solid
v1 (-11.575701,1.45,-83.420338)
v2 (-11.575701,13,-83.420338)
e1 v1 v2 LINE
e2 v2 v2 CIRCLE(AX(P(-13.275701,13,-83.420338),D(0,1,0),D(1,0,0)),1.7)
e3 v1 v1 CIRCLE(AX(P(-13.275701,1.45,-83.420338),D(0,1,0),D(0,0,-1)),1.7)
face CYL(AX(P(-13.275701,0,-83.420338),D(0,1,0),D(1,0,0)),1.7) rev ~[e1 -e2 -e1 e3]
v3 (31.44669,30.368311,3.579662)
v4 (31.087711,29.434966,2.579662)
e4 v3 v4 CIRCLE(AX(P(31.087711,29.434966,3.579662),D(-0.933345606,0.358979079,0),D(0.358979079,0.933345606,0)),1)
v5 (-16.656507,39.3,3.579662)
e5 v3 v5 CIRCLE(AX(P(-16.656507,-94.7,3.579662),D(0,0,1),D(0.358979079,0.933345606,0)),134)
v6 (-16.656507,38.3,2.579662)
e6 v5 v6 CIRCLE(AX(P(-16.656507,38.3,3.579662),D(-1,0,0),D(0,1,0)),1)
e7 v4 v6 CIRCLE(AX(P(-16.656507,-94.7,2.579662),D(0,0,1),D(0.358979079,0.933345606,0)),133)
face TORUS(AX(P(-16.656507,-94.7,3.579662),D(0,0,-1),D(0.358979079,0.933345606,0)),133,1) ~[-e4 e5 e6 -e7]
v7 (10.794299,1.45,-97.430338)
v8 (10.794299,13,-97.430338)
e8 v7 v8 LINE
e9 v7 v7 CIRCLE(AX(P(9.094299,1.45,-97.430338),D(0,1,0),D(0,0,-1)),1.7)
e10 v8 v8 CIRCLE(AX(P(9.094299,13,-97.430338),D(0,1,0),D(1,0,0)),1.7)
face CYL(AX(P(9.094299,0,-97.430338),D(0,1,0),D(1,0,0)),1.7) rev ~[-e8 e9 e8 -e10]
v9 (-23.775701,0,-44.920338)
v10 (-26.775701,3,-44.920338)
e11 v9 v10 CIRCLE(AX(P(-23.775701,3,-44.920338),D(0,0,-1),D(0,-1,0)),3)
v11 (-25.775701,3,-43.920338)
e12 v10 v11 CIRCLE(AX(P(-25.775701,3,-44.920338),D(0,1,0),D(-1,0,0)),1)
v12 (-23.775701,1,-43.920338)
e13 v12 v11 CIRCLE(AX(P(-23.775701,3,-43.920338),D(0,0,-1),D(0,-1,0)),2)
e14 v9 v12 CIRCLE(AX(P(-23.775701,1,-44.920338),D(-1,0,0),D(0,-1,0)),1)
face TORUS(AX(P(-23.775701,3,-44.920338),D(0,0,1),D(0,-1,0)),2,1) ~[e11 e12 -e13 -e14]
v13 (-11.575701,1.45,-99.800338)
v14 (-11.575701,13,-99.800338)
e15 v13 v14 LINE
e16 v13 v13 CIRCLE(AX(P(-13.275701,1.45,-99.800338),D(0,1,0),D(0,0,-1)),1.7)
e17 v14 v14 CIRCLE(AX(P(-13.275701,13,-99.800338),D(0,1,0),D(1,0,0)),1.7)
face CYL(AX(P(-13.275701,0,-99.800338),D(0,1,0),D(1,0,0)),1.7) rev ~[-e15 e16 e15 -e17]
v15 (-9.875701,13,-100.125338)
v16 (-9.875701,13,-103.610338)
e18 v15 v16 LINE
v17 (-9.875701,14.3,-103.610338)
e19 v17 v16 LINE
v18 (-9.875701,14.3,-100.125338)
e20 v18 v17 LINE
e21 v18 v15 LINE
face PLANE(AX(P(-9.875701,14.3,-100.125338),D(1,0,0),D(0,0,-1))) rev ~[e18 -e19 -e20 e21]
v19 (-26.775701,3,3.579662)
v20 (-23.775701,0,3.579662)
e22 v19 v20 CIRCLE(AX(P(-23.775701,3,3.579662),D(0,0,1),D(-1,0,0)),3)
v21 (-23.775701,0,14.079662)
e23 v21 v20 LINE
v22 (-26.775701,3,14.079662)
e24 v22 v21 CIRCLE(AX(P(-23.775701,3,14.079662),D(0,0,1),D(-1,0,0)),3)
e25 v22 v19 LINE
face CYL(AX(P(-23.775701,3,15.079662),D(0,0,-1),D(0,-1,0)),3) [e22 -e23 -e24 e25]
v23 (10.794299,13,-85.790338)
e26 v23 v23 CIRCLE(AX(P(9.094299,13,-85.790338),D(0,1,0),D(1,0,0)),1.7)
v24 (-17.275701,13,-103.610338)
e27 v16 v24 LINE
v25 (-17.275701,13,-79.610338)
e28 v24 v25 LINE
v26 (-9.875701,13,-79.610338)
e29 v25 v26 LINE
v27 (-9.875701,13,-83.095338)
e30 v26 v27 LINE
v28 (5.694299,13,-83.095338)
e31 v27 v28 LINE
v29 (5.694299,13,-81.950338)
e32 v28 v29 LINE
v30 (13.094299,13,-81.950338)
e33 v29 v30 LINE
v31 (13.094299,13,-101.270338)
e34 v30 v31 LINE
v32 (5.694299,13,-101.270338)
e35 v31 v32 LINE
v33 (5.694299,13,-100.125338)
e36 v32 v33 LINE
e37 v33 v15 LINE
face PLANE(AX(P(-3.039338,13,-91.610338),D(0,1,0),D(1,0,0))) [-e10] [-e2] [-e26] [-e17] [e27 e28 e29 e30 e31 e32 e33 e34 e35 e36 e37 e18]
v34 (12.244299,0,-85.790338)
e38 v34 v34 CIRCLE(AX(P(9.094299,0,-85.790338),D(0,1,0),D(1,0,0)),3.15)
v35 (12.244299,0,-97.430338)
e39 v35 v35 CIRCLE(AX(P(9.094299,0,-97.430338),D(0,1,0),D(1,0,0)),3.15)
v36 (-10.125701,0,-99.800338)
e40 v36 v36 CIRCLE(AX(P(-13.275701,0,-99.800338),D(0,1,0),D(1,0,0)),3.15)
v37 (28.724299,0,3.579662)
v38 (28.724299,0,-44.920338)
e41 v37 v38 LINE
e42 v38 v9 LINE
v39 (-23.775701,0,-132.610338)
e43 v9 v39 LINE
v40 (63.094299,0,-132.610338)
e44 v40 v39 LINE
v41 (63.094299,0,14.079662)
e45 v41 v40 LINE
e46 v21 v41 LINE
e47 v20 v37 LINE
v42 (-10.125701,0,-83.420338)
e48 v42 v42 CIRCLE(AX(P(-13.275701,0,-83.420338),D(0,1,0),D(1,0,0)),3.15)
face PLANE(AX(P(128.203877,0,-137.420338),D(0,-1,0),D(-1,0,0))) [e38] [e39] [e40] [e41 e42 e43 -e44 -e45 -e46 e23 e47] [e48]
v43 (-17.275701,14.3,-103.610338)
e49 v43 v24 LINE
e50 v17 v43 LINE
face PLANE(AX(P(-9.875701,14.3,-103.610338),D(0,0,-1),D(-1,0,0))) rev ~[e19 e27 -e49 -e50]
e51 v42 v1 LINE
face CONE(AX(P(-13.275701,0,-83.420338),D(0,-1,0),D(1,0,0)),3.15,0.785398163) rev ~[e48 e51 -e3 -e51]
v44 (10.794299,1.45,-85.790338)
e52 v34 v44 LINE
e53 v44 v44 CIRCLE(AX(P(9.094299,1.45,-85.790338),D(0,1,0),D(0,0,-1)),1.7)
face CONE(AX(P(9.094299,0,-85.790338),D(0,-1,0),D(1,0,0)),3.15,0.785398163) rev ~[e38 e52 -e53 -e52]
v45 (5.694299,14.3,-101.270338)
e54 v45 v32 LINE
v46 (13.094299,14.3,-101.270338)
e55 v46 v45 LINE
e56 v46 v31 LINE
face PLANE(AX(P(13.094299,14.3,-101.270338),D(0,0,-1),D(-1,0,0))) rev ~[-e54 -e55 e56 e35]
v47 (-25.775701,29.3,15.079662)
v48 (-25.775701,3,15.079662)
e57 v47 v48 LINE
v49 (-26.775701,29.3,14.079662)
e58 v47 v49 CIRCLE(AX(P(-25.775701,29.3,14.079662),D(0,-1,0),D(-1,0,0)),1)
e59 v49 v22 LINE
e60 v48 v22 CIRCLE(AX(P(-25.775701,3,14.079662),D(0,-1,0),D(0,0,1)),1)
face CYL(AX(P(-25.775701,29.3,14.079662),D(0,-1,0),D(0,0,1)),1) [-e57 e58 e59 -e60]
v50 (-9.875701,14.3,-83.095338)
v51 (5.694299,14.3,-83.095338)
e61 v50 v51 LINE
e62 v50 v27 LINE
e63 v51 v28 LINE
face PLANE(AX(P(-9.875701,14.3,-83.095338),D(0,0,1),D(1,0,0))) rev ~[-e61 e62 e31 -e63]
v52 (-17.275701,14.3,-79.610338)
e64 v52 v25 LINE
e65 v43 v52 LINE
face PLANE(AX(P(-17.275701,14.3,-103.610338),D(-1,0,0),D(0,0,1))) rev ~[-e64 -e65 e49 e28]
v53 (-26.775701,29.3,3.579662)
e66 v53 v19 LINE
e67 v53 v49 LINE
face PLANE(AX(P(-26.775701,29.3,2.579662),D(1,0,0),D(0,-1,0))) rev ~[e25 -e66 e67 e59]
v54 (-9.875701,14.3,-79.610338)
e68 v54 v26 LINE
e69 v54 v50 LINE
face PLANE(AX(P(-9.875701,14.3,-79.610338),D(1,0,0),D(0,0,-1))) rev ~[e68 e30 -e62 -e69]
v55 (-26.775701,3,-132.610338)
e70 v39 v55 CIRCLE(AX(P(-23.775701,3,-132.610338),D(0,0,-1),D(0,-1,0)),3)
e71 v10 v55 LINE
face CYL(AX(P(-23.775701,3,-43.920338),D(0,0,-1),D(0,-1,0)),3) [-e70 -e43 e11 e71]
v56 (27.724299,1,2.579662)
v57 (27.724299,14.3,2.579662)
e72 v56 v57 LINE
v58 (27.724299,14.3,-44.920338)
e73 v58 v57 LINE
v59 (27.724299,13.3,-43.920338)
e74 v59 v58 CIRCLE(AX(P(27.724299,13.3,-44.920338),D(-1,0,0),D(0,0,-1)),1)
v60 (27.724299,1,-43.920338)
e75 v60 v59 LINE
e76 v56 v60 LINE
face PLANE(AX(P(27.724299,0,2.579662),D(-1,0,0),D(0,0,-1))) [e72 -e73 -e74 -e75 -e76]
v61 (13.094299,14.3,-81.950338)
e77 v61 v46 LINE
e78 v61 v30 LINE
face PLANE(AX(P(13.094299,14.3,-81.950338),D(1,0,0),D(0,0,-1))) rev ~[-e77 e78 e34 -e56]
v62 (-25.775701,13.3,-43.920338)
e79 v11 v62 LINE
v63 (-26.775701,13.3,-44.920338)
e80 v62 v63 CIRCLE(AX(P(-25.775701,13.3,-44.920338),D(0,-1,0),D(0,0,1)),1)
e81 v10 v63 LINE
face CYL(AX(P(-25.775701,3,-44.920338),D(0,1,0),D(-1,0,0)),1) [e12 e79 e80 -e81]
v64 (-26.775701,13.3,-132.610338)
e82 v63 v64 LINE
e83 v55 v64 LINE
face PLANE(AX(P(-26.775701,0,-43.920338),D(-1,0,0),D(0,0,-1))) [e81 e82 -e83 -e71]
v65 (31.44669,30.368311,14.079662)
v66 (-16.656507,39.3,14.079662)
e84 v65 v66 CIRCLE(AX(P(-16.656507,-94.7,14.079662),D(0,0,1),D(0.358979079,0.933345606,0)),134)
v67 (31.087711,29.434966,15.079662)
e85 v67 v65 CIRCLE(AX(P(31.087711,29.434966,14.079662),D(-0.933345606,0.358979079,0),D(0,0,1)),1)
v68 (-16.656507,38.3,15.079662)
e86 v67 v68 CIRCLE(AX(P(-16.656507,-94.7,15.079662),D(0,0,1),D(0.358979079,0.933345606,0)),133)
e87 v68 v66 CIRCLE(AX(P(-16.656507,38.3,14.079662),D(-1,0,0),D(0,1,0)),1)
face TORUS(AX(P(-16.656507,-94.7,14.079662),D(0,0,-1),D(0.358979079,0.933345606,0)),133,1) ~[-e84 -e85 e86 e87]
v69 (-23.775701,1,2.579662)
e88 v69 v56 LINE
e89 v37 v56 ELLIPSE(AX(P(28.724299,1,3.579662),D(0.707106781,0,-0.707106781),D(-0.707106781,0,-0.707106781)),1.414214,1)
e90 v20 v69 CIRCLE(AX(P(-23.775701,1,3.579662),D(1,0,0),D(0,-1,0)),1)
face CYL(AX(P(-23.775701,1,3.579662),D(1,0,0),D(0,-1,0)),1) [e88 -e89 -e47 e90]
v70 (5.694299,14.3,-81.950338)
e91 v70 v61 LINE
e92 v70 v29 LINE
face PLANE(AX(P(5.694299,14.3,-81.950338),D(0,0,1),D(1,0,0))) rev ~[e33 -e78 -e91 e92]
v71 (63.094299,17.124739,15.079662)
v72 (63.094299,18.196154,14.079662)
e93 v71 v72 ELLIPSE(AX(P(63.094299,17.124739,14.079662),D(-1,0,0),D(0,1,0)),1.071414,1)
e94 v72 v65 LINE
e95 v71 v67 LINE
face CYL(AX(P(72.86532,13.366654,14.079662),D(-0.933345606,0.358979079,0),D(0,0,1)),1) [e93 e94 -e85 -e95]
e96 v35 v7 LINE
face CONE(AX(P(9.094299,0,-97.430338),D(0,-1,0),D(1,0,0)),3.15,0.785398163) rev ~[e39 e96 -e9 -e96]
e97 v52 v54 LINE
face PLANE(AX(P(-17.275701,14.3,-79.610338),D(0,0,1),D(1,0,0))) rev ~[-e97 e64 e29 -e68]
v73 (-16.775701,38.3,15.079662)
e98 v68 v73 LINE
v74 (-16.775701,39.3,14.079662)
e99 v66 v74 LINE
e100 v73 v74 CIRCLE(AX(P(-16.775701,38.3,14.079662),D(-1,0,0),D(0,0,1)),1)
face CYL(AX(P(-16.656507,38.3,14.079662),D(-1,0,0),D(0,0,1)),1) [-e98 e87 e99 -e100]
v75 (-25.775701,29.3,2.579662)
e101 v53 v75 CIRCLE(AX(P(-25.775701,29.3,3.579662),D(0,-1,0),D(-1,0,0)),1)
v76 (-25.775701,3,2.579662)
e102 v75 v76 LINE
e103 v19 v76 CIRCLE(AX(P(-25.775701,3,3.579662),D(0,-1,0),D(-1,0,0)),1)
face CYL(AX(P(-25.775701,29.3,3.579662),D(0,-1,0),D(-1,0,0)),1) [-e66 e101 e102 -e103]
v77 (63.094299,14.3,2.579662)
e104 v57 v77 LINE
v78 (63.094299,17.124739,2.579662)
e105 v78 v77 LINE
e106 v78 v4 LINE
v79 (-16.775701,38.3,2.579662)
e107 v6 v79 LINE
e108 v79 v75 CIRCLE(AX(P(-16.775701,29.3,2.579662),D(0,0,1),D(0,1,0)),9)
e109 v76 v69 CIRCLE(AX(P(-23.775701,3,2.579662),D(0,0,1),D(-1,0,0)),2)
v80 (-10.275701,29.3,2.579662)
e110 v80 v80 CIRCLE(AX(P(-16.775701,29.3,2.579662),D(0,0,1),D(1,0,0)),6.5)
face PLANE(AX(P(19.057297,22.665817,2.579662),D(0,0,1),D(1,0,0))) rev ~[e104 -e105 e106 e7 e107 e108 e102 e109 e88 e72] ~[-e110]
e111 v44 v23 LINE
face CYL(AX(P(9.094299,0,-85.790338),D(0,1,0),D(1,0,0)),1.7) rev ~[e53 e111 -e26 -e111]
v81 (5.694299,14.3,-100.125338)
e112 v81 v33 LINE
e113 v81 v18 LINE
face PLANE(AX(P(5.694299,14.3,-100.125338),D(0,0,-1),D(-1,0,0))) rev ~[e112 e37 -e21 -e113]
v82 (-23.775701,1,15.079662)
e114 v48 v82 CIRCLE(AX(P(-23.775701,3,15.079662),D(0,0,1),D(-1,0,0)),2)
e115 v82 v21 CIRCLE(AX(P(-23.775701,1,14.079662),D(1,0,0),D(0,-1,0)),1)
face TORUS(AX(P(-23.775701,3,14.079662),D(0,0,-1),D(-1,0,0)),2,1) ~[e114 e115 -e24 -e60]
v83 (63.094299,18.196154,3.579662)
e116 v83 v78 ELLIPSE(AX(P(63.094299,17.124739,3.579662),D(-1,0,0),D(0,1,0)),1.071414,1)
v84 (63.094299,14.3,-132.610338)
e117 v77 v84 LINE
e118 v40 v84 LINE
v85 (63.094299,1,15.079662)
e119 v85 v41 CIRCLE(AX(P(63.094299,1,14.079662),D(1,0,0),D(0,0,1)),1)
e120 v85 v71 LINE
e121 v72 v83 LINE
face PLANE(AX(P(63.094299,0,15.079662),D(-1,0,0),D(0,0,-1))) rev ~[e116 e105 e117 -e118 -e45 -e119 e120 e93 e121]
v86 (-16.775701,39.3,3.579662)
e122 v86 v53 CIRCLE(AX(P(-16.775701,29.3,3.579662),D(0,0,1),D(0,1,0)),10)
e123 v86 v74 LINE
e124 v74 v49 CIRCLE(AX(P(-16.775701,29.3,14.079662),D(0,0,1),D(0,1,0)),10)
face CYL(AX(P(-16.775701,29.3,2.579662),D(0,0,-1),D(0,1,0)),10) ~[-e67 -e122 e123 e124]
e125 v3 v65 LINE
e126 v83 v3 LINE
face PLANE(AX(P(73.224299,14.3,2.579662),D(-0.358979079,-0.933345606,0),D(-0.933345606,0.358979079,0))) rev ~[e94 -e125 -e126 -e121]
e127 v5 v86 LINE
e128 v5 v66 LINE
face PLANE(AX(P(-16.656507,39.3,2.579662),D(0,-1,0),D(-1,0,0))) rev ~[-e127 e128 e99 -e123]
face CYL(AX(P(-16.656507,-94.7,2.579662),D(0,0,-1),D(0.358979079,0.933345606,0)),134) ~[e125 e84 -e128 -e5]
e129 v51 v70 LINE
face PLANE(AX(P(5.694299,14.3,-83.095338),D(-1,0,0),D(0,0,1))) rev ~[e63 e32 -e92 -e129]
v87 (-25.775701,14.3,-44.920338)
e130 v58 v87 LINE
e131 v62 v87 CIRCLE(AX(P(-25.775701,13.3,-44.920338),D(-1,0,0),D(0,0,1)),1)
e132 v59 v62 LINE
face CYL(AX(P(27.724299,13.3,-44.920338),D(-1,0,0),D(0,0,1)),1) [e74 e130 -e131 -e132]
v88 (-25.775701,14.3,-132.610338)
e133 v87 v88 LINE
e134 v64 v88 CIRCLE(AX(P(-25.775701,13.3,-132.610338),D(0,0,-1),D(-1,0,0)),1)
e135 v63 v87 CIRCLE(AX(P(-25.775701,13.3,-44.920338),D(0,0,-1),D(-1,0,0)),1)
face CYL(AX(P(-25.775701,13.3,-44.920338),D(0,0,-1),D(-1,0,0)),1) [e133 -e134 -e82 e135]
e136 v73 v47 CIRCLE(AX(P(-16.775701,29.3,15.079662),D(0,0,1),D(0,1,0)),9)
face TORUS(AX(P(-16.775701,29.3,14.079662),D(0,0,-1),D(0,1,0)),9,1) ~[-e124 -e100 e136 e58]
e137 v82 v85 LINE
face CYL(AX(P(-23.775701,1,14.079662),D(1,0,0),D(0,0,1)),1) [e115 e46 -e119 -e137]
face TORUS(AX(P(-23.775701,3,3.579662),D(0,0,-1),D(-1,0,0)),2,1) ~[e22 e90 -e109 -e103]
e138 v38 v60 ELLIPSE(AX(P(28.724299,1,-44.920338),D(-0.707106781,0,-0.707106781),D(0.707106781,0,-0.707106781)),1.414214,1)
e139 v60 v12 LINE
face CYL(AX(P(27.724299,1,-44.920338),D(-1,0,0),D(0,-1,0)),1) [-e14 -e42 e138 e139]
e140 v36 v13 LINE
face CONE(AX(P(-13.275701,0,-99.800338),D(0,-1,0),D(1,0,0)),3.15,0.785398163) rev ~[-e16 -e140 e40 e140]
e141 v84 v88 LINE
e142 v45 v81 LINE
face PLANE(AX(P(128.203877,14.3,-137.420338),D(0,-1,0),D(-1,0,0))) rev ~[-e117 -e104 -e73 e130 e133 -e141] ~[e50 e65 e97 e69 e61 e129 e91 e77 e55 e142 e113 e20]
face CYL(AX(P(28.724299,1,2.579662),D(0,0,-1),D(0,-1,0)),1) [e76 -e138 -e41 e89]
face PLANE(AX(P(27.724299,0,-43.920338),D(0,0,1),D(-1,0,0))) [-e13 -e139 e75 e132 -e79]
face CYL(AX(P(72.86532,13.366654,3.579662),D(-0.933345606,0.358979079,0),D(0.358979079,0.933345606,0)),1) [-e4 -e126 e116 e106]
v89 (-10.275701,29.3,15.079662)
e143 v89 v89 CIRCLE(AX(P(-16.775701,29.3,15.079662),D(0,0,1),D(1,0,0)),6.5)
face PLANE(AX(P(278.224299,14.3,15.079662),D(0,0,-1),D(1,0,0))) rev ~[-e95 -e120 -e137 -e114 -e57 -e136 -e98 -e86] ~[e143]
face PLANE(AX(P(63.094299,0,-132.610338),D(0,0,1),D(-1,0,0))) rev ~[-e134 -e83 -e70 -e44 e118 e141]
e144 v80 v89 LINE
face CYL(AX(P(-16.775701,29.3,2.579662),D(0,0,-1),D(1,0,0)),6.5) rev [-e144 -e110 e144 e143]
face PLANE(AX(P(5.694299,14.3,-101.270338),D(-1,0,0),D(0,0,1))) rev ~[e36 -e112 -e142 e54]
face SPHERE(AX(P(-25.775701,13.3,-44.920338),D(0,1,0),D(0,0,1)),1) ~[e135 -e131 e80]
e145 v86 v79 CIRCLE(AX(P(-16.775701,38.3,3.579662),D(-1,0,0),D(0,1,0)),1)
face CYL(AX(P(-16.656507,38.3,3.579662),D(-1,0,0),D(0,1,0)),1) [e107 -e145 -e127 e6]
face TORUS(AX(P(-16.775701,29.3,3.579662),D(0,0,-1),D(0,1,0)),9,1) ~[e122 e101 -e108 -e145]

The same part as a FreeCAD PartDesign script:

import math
import FreeCAD as App
import Part
import Sketcher
from FreeCAD import Vector
Q = App.Units.Quantity


def edges_at(feature, points):
    """Names of the edges that pass closest to the given points."""
    edges = feature.Shape.Edges
    near = lambda p: min(range(len(edges)), key=lambda i: edges[i].distToShape(Part.Vertex(*p))[0])
    return sorted({f"Edge{near(p) + 1}" for p in points})


def add_polygon(sketch, points):
    """Adds a closed chain of lines whose ends are joined by coincident constraints."""
    first, n = sketch.GeometryCount, len(points)
    for a, b in zip(points, points[1:] + points[:1]):
        sketch.addGeometry(Part.LineSegment(App.Vector(*a, 0), App.Vector(*b, 0)), False)
    for i in range(n):
        sketch.addConstraint(Sketcher.Constraint("Coincident", first + i, 2, first + (i + 1) % n, 1))

doc = App.newDocument("Part")
body = doc.addObject("PartDesign::Body", "Body")

sketch1 = doc.addObject("Sketcher::SketchObject", "Sketch")
body.addObject(sketch1)
sketch1.AttachmentSupport = (doc.XZ_Plane, [""])
sketch1.MapMode = "FlatFace"
add_polygon(sketch1, [(28, -44), (28, 3), (-27, 3), (-27, 15), (318, 15), (318, -290), (-27, -290), (-27, -277), (28, -277), (28, -231), (-27, -231), (-27, -44)])
sketch1.addConstraint(Sketcher.Constraint("Vertical", 0))
sketch1.addConstraint(Sketcher.Constraint("Horizontal", 1))
sketch1.addConstraint(Sketcher.Constraint("Vertical", 2))
sketch1.addConstraint(Sketcher.Constraint("Horizontal", 3))
sketch1.addConstraint(Sketcher.Constraint("Vertical", 4))
sketch1.addConstraint(Sketcher.Constraint("Horizontal", 5))
sketch1.addConstraint(Sketcher.Constraint("Vertical", 6))
sketch1.addConstraint(Sketcher.Constraint("Horizontal", 7))
sketch1.addConstraint(Sketcher.Constraint("Vertical", 8))
sketch1.addConstraint(Sketcher.Constraint("Horizontal", 9))
sketch1.addConstraint(Sketcher.Constraint("Vertical", 10))
sketch1.addConstraint(Sketcher.Constraint("Horizontal", 11))
sketch1.addConstraint(Sketcher.Constraint("Vertical", 2, 2, 5, 2))
sketch1.addConstraint(Sketcher.Constraint("Vertical", 0, 2, 7, 2))
sketch1.addConstraint(Sketcher.Constraint("Vertical", 6, 2, 9, 2))
sketch1.addConstraint(Sketcher.Constraint("Equal", 2, 6))
sketch1.addConstraint(Sketcher.Constraint("Equal", 0, 8))
sketch1.addConstraint(Sketcher.Constraint("DistanceX", 3, 1, 3, 2, 345.0))
sketch1.addConstraint(Sketcher.Constraint("DistanceY", 4, 2, 4, 1, 305.0))
sketch1.addConstraint(Sketcher.Constraint("DistanceY", 10, 1, 10, 2, 187.0))
sketch1.addConstraint(Sketcher.Constraint("DistanceX", 1, 2, 1, 1, 54.5))
sketch1.addConstraint(Sketcher.Constraint("DistanceY", 0, 1, 0, 2, 46.5))
sketch1.addConstraint(Sketcher.Constraint("DistanceX", -1, 1, 0, 2, 27.724299))
sketch1.addConstraint(Sketcher.Constraint("DistanceY", -1, 1, 0, 2, 2.579662))
pad1 = doc.addObject("PartDesign::Pad", "Pad")
body.addObject(pad1)
pad1.Profile = sketch1
pad1.Length = 14.3
pad1.Reversed = True

sketch2 = doc.addObject("Sketcher::SketchObject", "Sketch001")
body.addObject(sketch2)
sketch2.AttachmentSupport = (doc.XZ_Plane, [""])
sketch2.MapMode = "FlatFace"
sketch2.AttachmentOffset = App.Placement(Vector(0, 0, -14.3), App.Rotation())
add_polygon(sketch2, [(5.7, -191.7), (-9.9, -191.7), (-9.9, -195.2), (-17.3, -195.2), (-17.3, -171.2), (-9.9, -171.2), (-9.9, -174.7), (5.7, -174.7), (5.7, -173.6), (13.1, -173.6), (13.1, -192.9), (5.7, -192.9)])
sketch2.addGeometry(Part.Circle(Vector(-13.3, -175, 0), Vector(0, 0, 1), 1.5), False)
sketch2.addGeometry(Part.Circle(Vector(9.1, -177.4, 0), Vector(0, 0, 1), 1.5), False)
sketch2.addGeometry(Part.Circle(Vector(-13.3, -191.4, 0), Vector(0, 0, 1), 1.5), False)
sketch2.addGeometry(Part.Circle(Vector(9.1, -189.1, 0), Vector(0, 0, 1), 1.5), False)
add_polygon(sketch2, [(5.7, -100.1), (-9.9, -100.1), (-9.9, -103.6), (-17.3, -103.6), (-17.3, -79.6), (-9.9, -79.6), (-9.9, -83.1), (5.7, -83.1), (5.7, -82), (13.1, -82), (13.1, -101.3), (5.7, -101.3)])
sketch2.addGeometry(Part.Circle(Vector(-13.3, -83.4, 0), Vector(0, 0, 1), 1.5), False)
sketch2.addGeometry(Part.Circle(Vector(9.1, -85.8, 0), Vector(0, 0, 1), 1.5), False)
sketch2.addGeometry(Part.Circle(Vector(-13.3, -99.8, 0), Vector(0, 0, 1), 1.5), False)
sketch2.addGeometry(Part.Circle(Vector(9.1, -97.4, 0), Vector(0, 0, 1), 1.5), False)
sketch2.addConstraint(Sketcher.Constraint("Horizontal", 0))
sketch2.addConstraint(Sketcher.Constraint("Vertical", 1))
sketch2.addConstraint(Sketcher.Constraint("Horizontal", 2))
sketch2.addConstraint(Sketcher.Constraint("Vertical", 3))
sketch2.addConstraint(Sketcher.Constraint("Horizontal", 4))
sketch2.addConstraint(Sketcher.Constraint("Vertical", 5))
sketch2.addConstraint(Sketcher.Constraint("Horizontal", 6))
sketch2.addConstraint(Sketcher.Constraint("Vertical", 7))
sketch2.addConstraint(Sketcher.Constraint("Horizontal", 8))
sketch2.addConstraint(Sketcher.Constraint("Vertical", 9))
sketch2.addConstraint(Sketcher.Constraint("Horizontal", 10))
sketch2.addConstraint(Sketcher.Constraint("Vertical", 11))
sketch2.addConstraint(Sketcher.Constraint("Horizontal", 16))
sketch2.addConstraint(Sketcher.Constraint("Vertical", 17))
sketch2.addConstraint(Sketcher.Constraint("Horizontal", 18))
sketch2.addConstraint(Sketcher.Constraint("Vertical", 19))
sketch2.addConstraint(Sketcher.Constraint("Horizontal", 20))
sketch2.addConstraint(Sketcher.Constraint("Vertical", 21))
sketch2.addConstraint(Sketcher.Constraint("Horizontal", 22))
sketch2.addConstraint(Sketcher.Constraint("Vertical", 23))
sketch2.addConstraint(Sketcher.Constraint("Horizontal", 24))
sketch2.addConstraint(Sketcher.Constraint("Vertical", 25))
sketch2.addConstraint(Sketcher.Constraint("Horizontal", 26))
sketch2.addConstraint(Sketcher.Constraint("Vertical", 27))
sketch2.addConstraint(Sketcher.Constraint("Equal", 12, 13))
sketch2.addConstraint(Sketcher.Constraint("Equal", 13, 14))
sketch2.addConstraint(Sketcher.Constraint("Equal", 14, 15))
sketch2.addConstraint(Sketcher.Constraint("Equal", 15, 28))
sketch2.addConstraint(Sketcher.Constraint("Equal", 28, 29))
sketch2.addConstraint(Sketcher.Constraint("Equal", 29, 30))
sketch2.addConstraint(Sketcher.Constraint("Equal", 30, 31))
sketch2.addConstraint(Sketcher.Constraint("Vertical", 12, 3, 14, 3))
sketch2.addConstraint(Sketcher.Constraint("Vertical", 13, 3, 15, 3))
sketch2.addConstraint(Sketcher.Constraint("Vertical", 14, 3, 28, 3))
sketch2.addConstraint(Sketcher.Constraint("Vertical", 15, 3, 29, 3))
sketch2.addConstraint(Sketcher.Constraint("Vertical", 28, 3, 30, 3))
sketch2.addConstraint(Sketcher.Constraint("Vertical", 29, 3, 31, 3))
sketch2.addConstraint(Sketcher.Constraint("Vertical", 1, 2, 4, 2))
sketch2.addConstraint(Sketcher.Constraint("Vertical", 7, 2, 10, 2))
sketch2.addConstraint(Sketcher.Constraint("Vertical", 5, 2, 16, 2))
sketch2.addConstraint(Sketcher.Constraint("Vertical", 3, 2, 18, 2))
sketch2.addConstraint(Sketcher.Constraint("Vertical", 17, 2, 20, 2))
sketch2.addConstraint(Sketcher.Constraint("Vertical", 11, 2, 22, 2))
sketch2.addConstraint(Sketcher.Constraint("Vertical", 9, 2, 24, 2))
sketch2.addConstraint(Sketcher.Constraint("Vertical", 23, 2, 26, 2))
sketch2.addConstraint(Sketcher.Constraint("Equal", 4, 8))
sketch2.addConstraint(Sketcher.Constraint("Equal", 1, 5))
sketch2.addConstraint(Sketcher.Constraint("Equal", 7, 11))
sketch2.addConstraint(Sketcher.Constraint("Equal", 5, 17))
sketch2.addConstraint(Sketcher.Constraint("Equal", 3, 19))
sketch2.addConstraint(Sketcher.Constraint("Equal", 17, 21))
sketch2.addConstraint(Sketcher.Constraint("Equal", 11, 23))
sketch2.addConstraint(Sketcher.Constraint("Equal", 9, 25))
sketch2.addConstraint(Sketcher.Constraint("Diameter", 12, 3.0))
sketch2.addConstraint(Sketcher.Constraint("DistanceY", 3, 1, 3, 2, 24.0))
sketch2.addConstraint(Sketcher.Constraint("DistanceX", 2, 2, 2, 1, 7.4))
sketch2.addConstraint(Sketcher.Constraint("DistanceY", 14, 3, 28, 3, 108.0))
sketch2.addConstraint(Sketcher.Constraint("DistanceX", 2, 2, 14, 3, 4.0))
sketch2.addConstraint(Sketcher.Constraint("DistanceX", 13, 3, 8, 2, 4.0))
sketch2.addConstraint(Sketcher.Constraint("DistanceX", 0, 2, 0, 1, 15.57))
sketch2.addConstraint(Sketcher.Constraint("DistanceY", 9, 2, 9, 1, 19.32))
sketch2.addConstraint(Sketcher.Constraint("DistanceY", 1, 2, 1, 1, 3.485))
sketch2.addConstraint(Sketcher.Constraint("DistanceY", 13, 3, 12, 3, 2.37))
sketch2.addConstraint(Sketcher.Constraint("DistanceY", 14, 3, 12, 3, 16.38))
sketch2.addConstraint(Sketcher.Constraint("DistanceY", 15, 3, 13, 3, 11.64))
sketch2.addConstraint(Sketcher.Constraint("DistanceY", 29, 3, 28, 3, 2.37))
sketch2.addConstraint(Sketcher.Constraint("DistanceY", 30, 3, 28, 3, 16.38))
sketch2.addConstraint(Sketcher.Constraint("DistanceY", 31, 3, 29, 3, 11.64))
sketch2.addConstraint(Sketcher.Constraint("DistanceY", 1, 2, 14, 3, 3.81))
sketch2.addConstraint(Sketcher.Constraint("DistanceY", 17, 2, 30, 3, 3.81))
sketch2.addConstraint(Sketcher.Constraint("DistanceX", 12, 3, -1, 1, 13.275701))
sketch2.addConstraint(Sketcher.Constraint("DistanceY", 12, 3, -1, 1, 175.040338))
pocket1 = doc.addObject("PartDesign::Pocket", "Pocket")
body.addObject(pocket1)
pocket1.Profile = sketch2
pocket1.Length = 1.3
pocket1.Reversed = True

sketch3 = doc.addObject("Sketcher::SketchObject", "Sketch002")
body.addObject(sketch3)
sketch3.AttachmentSupport = (doc.XZ_Plane, [""])
sketch3.MapMode = "FlatFace"
sketch3.addGeometry(Part.Circle(Vector(-13.3, -191.4, 0), Vector(0, 0, 1), 1.7), False)
sketch3.addGeometry(Part.Circle(Vector(-13.3, -175, 0), Vector(0, 0, 1), 1.7), False)
sketch3.addGeometry(Part.Circle(Vector(9.1, -177.4, 0), Vector(0, 0, 1), 1.7), False)
sketch3.addGeometry(Part.Circle(Vector(9.1, -189.1, 0), Vector(0, 0, 1), 1.7), False)
sketch3.addGeometry(Part.Circle(Vector(-13.3, -83.4, 0), Vector(0, 0, 1), 1.7), False)
sketch3.addGeometry(Part.Circle(Vector(-13.3, -99.8, 0), Vector(0, 0, 1), 1.7), False)
sketch3.addGeometry(Part.Circle(Vector(9.1, -97.4, 0), Vector(0, 0, 1), 1.7), False)
sketch3.addGeometry(Part.Circle(Vector(9.1, -85.8, 0), Vector(0, 0, 1), 1.7), False)
sketch3.addConstraint(Sketcher.Constraint("Equal", 0, 1))
sketch3.addConstraint(Sketcher.Constraint("Equal", 1, 2))
sketch3.addConstraint(Sketcher.Constraint("Equal", 2, 3))
sketch3.addConstraint(Sketcher.Constraint("Equal", 3, 4))
sketch3.addConstraint(Sketcher.Constraint("Equal", 4, 5))
sketch3.addConstraint(Sketcher.Constraint("Equal", 5, 6))
sketch3.addConstraint(Sketcher.Constraint("Equal", 6, 7))
sketch3.addConstraint(Sketcher.Constraint("Vertical", 0, 3, 1, 3))
sketch3.addConstraint(Sketcher.Constraint("Vertical", 2, 3, 3, 3))
sketch3.addConstraint(Sketcher.Constraint("Vertical", 1, 3, 4, 3))
sketch3.addConstraint(Sketcher.Constraint("Vertical", 4, 3, 5, 3))
sketch3.addConstraint(Sketcher.Constraint("Vertical", 3, 3, 6, 3))
sketch3.addConstraint(Sketcher.Constraint("Vertical", 6, 3, 7, 3))
sketch3.addConstraint(Sketcher.Constraint("Diameter", 0, 3.4))
sketch3.addConstraint(Sketcher.Constraint("DistanceY", 0, 3, 4, 3, 108.0))
sketch3.addConstraint(Sketcher.Constraint("DistanceY", 0, 3, 1, 3, 16.38))
sketch3.addConstraint(Sketcher.Constraint("DistanceX", 1, 3, 2, 3, 22.37))
sketch3.addConstraint(Sketcher.Constraint("DistanceY", 2, 3, 1, 3, 2.37))
sketch3.addConstraint(Sketcher.Constraint("DistanceY", 3, 3, 2, 3, 11.64))
sketch3.addConstraint(Sketcher.Constraint("DistanceY", 5, 3, 4, 3, 16.38))
sketch3.addConstraint(Sketcher.Constraint("DistanceY", 5, 3, 6, 3, 2.37))
sketch3.addConstraint(Sketcher.Constraint("DistanceY", 6, 3, 7, 3, 11.64))
sketch3.addConstraint(Sketcher.Constraint("DistanceX", 0, 3, -1, 1, 13.275701))
sketch3.addConstraint(Sketcher.Constraint("DistanceY", 0, 3, -1, 1, 191.420338))
doc.recompute()
hole = doc.addObject("PartDesign::Hole", "Hole")
body.addObject(hole)
hole.Profile = sketch3
hole.ThreadType = "None"
hole.Diameter = 3.4
hole.DepthType = "ThroughAll"
hole.HoleCutType = "Countersink"
hole.HoleCutDiameter = 6.3
hole.HoleCutCountersinkAngle = 90

sketch4 = doc.addObject("Sketcher::SketchObject", "Sketch003")
body.addObject(sketch4)
sketch4.AttachmentSupport = (doc.XY_Plane, [""])
sketch4.MapMode = "FlatFace"
sketch4.AttachmentOffset = App.Placement(Vector(0, 0, 2.579662), App.Rotation())
sketch4.addGeometry(Part.LineSegment(Vector(-26.78, 14.3, 0), Vector(73.22, 14.3, 0)), False)
sketch4.addGeometry(Part.LineSegment(Vector(73.22, 14.3, 0), Vector(31.45, 30.37, 0)), False)
sketch4.addGeometry(Part.ArcOfCircle(Part.Circle(Vector(-16.66, -94.7, 0), Vector(0, 0, 1), 134), math.radians(69), math.radians(90)), False)
sketch4.addGeometry(Part.LineSegment(Vector(-16.66, 39.3, 0), Vector(-16.78, 39.3, 0)), False)
sketch4.addGeometry(Part.ArcOfCircle(Part.Circle(Vector(-16.78, 29.3, 0), Vector(0, 0, 1), 10), math.radians(90), math.radians(180)), False)
sketch4.addGeometry(Part.LineSegment(Vector(-26.78, 29.3, 0), Vector(-26.78, 14.3, 0)), False)
sketch4.addGeometry(Part.Circle(Vector(-16.78, 29.3, 0), Vector(0, 0, 1), 6.5), False)
sketch4.addConstraint(Sketcher.Constraint("Coincident", 0, 2, 1, 1))
sketch4.addConstraint(Sketcher.Constraint("Tangent", 1, 2, 2, 1))
sketch4.addConstraint(Sketcher.Constraint("Tangent", 2, 2, 3, 1))
sketch4.addConstraint(Sketcher.Constraint("Tangent", 3, 2, 4, 1))
sketch4.addConstraint(Sketcher.Constraint("Tangent", 4, 2, 5, 1))
sketch4.addConstraint(Sketcher.Constraint("Coincident", 5, 2, 0, 1))
sketch4.addConstraint(Sketcher.Constraint("Horizontal", 0))
sketch4.addConstraint(Sketcher.Constraint("Vertical", 5))
sketch4.addConstraint(Sketcher.Constraint("Coincident", 6, 3, 4, 3))
sketch4.addConstraint(Sketcher.Constraint("Vertical", 6, 3, 3, 2))
sketch4.addConstraint(Sketcher.Constraint("Diameter", 6, 13.0))
sketch4.addConstraint(Sketcher.Constraint("Radius", 2, 134.0))
sketch4.addConstraint(Sketcher.Constraint("Radius", 4, 10.0))
sketch4.addConstraint(Sketcher.Constraint("DistanceX", 0, 1, 0, 2, 100.0))
sketch4.addConstraint(Sketcher.Constraint("DistanceY", 5, 2, 5, 1, 15.0))
sketch4.addConstraint(Sketcher.Constraint("DistanceY", 2, 3, -1, 1, 94.7))
sketch4.addConstraint(Sketcher.Constraint("DistanceX", 4, 3, -1, 1, 16.775701))
sketch4.addConstraint(Sketcher.Constraint("DistanceX", 3, 2, 3, 1, 0.119194))
pad2 = doc.addObject("PartDesign::Pad", "Pad001")
body.addObject(pad2)
pad2.Profile = sketch4
pad2.Length = 12.5
body2 = doc.addObject("PartDesign::Body", "Body001")
doc.recompute()

body2.BaseFeature = body
doc.recompute()

mirroring = doc.addObject("Part::Mirroring", "Mirroring")
mirroring.Source = body
mirroring.Base = Vector(0, 0, -137.420338)
mirroring.Normal = Vector(0, 0, 1)
body3 = doc.addObject("PartDesign::Body", "Body002")
body3.BaseFeature = mirroring
boolean = doc.addObject("PartDesign::Boolean", "Boolean")
body2.addObject(boolean)
boolean.Type = "Fuse"
boolean.addObjects([body3])
doc.recompute()

sketch5 = doc.addObject("Sketcher::SketchObject", "Sketch004")
body2.addObject(sketch5)
sketch5.AttachmentSupport = (doc.getObject("XZ_Plane001"), [""])
sketch5.MapMode = "FlatFace"
sketch5.AttachmentOffset = App.Placement(Vector(0, 0, -14.3), App.Rotation())
add_polygon(sketch5, [(278, -59), (278, 15), (318, 15), (318, -59)])
sketch5.addConstraint(Sketcher.Constraint("Vertical", 0))
sketch5.addConstraint(Sketcher.Constraint("Horizontal", 1))
sketch5.addConstraint(Sketcher.Constraint("Vertical", 2))
sketch5.addConstraint(Sketcher.Constraint("Horizontal", 3))
sketch5.addConstraint(Sketcher.Constraint("DistanceX", 1, 1, 1, 2, 40.0))
sketch5.addConstraint(Sketcher.Constraint("DistanceY", 0, 1, 0, 2, 74.0))
sketch5.addConstraint(Sketcher.Constraint("DistanceX", -1, 1, 0, 2, 278.224299))
sketch5.addConstraint(Sketcher.Constraint("DistanceY", -1, 1, 0, 2, 15.079662))
pad3 = doc.addObject("PartDesign::Pad", "Pad002")
body2.addObject(pad3)
pad3.Profile = sketch5
pad3.Length = 25
pad3.Reversed = True

sketch6 = doc.addObject("Sketcher::SketchObject", "Sketch005")
body2.addObject(sketch6)
sketch6.AttachmentSupport = (doc.getObject("YZ_Plane001"), [""])
sketch6.MapMode = "FlatFace"
sketch6.AttachmentOffset = App.Placement(Vector(0, 0, 318.224299), App.Rotation())
add_polygon(sketch6, [(24, -2), (27, -6), (32, -6), (34, -2), (32, 3), (27, 3)])
add_polygon(sketch6, [(24, -42), (27, -46), (32, -46), (34, -42), (32, -37), (27, -37)])
sketch6.addConstraint(Sketcher.Constraint("Horizontal", 1))
sketch6.addConstraint(Sketcher.Constraint("Horizontal", 4))
sketch6.addConstraint(Sketcher.Constraint("Horizontal", 7))
sketch6.addConstraint(Sketcher.Constraint("Horizontal", 10))
sketch6.addConstraint(Sketcher.Constraint("Parallel", 0, 3))
sketch6.addConstraint(Sketcher.Constraint("Parallel", 2, 5))
sketch6.addConstraint(Sketcher.Constraint("Parallel", 3, 6))
sketch6.addConstraint(Sketcher.Constraint("Parallel", 5, 8))
sketch6.addConstraint(Sketcher.Constraint("Parallel", 6, 9))
sketch6.addConstraint(Sketcher.Constraint("Parallel", 8, 11))
sketch6.addConstraint(Sketcher.Constraint("Horizontal", 2, 2, 5, 2))
sketch6.addConstraint(Sketcher.Constraint("Horizontal", 8, 2, 11, 2))
sketch6.addConstraint(Sketcher.Constraint("Vertical", 1, 2, 3, 2))
sketch6.addConstraint(Sketcher.Constraint("Vertical", 0, 2, 4, 2))
sketch6.addConstraint(Sketcher.Constraint("Vertical", 4, 2, 6, 2))
sketch6.addConstraint(Sketcher.Constraint("Vertical", 3, 2, 7, 2))
sketch6.addConstraint(Sketcher.Constraint("Vertical", 2, 2, 8, 2))
sketch6.addConstraint(Sketcher.Constraint("Vertical", 7, 2, 9, 2))
sketch6.addConstraint(Sketcher.Constraint("Angle", 0, Q("-60 deg")))
sketch6.addConstraint(Sketcher.Constraint("DistanceY", 1, 2, 3, 2, 9.0))
sketch6.addConstraint(Sketcher.Constraint("DistanceY", 6, 2, 0, 2, 40.0))
sketch6.addConstraint(Sketcher.Constraint("DistanceX", 1, 1, 1, 2, 5.196152))
sketch6.addConstraint(Sketcher.Constraint("DistanceX", -1, 1, 0, 2, 26.701924))
sketch6.addConstraint(Sketcher.Constraint("DistanceY", 0, 2, -1, 1, 6.420338))
pocket2 = doc.addObject("PartDesign::Pocket", "Pocket001")
body2.addObject(pocket2)
pocket2.Profile = sketch6
pocket2.Length = 4

sketch7 = doc.addObject("Sketcher::SketchObject", "Sketch006")
body2.addObject(sketch7)
sketch7.AttachmentSupport = (doc.getObject("YZ_Plane001"), [""])
sketch7.MapMode = "FlatFace"
sketch7.AttachmentOffset = App.Placement(Vector(0, 0, 314.224299), App.Rotation())
sketch7.addGeometry(Part.Circle(Vector(29.3, -1.9, 0), Vector(0, 0, 1), 2.8), False)
sketch7.addGeometry(Part.Circle(Vector(29.3, -41.9, 0), Vector(0, 0, 1), 2.8), False)
sketch7.addConstraint(Sketcher.Constraint("Equal", 0, 1))
sketch7.addConstraint(Sketcher.Constraint("Vertical", 0, 3, 1, 3))
sketch7.addConstraint(Sketcher.Constraint("Diameter", 0, 5.5))
sketch7.addConstraint(Sketcher.Constraint("DistanceY", 1, 3, 0, 3, 40.0))
sketch7.addConstraint(Sketcher.Constraint("DistanceX", -1, 1, 0, 3, 29.3))
sketch7.addConstraint(Sketcher.Constraint("DistanceY", 0, 3, -1, 1, 1.920338))
doc.recompute()
hole2 = doc.addObject("PartDesign::Hole", "Hole001")
body2.addObject(hole2)
hole2.Profile = sketch7
hole2.ThreadType = "None"
hole2.Diameter = 5.5
hole2.DepthType = "ThroughAll"
doc.recompute()

fillet = doc.addObject("PartDesign::Fillet", "Fillet")
body2.addObject(fillet)
fillet.Base = (hole2, edges_at(hole2, [(278.224, 39.3, -21.92)]))
fillet.Radius = 4
doc.recompute()

datumplane = doc.addObject("PartDesign::Plane", "DatumPlane")
body2.addObject(datumplane)
datumplane.AttachmentSupport = (doc.getObject("XY_Plane001"), [""])
datumplane.MapMode = "FlatFace"
datumplane.AttachmentOffset = App.Placement(Vector(0, 0, -137.420338), App.Rotation())
mirrored = doc.addObject("PartDesign::Mirrored", "Mirrored")
body2.addObject(mirrored)
mirrored.Originals = [pad3, pocket2, hole2]
mirrored.MirrorPlane = (datumplane, [""])
body2.Tip = mirrored
doc.recompute()

fillet2 = doc.addObject("PartDesign::Fillet", "Fillet001")
body2.addObject(fillet2)
fillet2.Base = (mirrored, edges_at(mirrored, [(278.224, 39.3, -252.92)]))
fillet2.Radius = 4
doc.recompute()

fillet3 = doc.addObject("PartDesign::Fillet", "Fillet002")
body2.addObject(fillet3)
fillet3.Base = (fillet2, edges_at(fillet2, [(318.224, 0, -137.42)]))
fillet3.Radius = 7
doc.recompute()

fillet4 = doc.addObject("PartDesign::Fillet", "Fillet003")
body2.addObject(fillet4)
fillet4.Base = (fillet3, edges_at(fillet3, [(-26.776, 0, -137.42)]))
fillet4.Radius = 3
doc.recompute()

fillet5 = doc.addObject("PartDesign::Fillet", "Fillet004")
body2.addObject(fillet5)
fillet5.Base = (fillet4, edges_at(fillet4, [(-26.776, 0, 8.83)]))
fillet5.Radius = 3
doc.recompute()

fillet6 = doc.addObject("PartDesign::Fillet", "Fillet005")
body2.addObject(fillet6)
fillet6.Base = (fillet5, edges_at(fillet5, [(-26.776, 0, -283.67)]))
fillet6.Radius = 3
doc.recompute()

fillet7 = doc.addObject("PartDesign::Fillet", "Fillet006")
body2.addObject(fillet7)
fillet7.Base = (fillet6, edges_at(fillet6, [
    (52.335, 22.334, 15.08),
    (7.806, 37.048, 15.08),
    (-16.716, 39.3, 15.08),
    (-23.847, 36.371, 15.08),
    (318.224, 23.15, 15.08),
    (-26.776, 16.15, 15.08),
    (316.174, 2.05, 15.08),
    (143.724, 0, 15.08),
    (-25.897, 0.879, 15.08),
]))
fillet7.Radius = 1
doc.recompute()

fillet8 = doc.addObject("PartDesign::Fillet", "Fillet007")
body2.addObject(fillet8)
fillet8.Base = (fillet7, edges_at(fillet7, [
    (-26.776, 16.15, -289.92),
    (318.224, 23.15, -289.92),
    (-23.847, 36.371, -289.92),
    (-16.716, 39.3, -289.92),
    (7.806, 37.048, -289.92),
    (52.335, 22.334, -289.92),
    (143.724, 0, -289.92),
    (316.174, 2.05, -289.92),
    (-25.897, 0.879, -289.92),
]))
fillet8.Radius = 1
doc.recompute()

fillet9 = doc.addObject("PartDesign::Fillet", "Fillet008")
body2.addObject(fillet9)
fillet9.Base = (fillet8, edges_at(fillet8, [
    (27.724, 0, -20.67),
    (1.974, 0, 2.58),
    (-26.776, 8.65, -43.92),
    (-23.847, 36.371, 2.58),
    (-16.716, 39.3, 2.58),
    (7.806, 37.048, 2.58),
    (52.335, 22.334, 2.58),
    (-26.776, 16.15, 2.58),
    (1.974, 0, -43.92),
    (-25.897, 0.879, -43.92),
    (-25.897, 0.879, 2.58),
]))
fillet9.Radius = 1
doc.recompute()

fillet10 = doc.addObject("PartDesign::Fillet", "Fillet009")
body2.addObject(fillet10)
fillet10.Base = (fillet9, edges_at(fillet9, [
    (1.974, 0, -230.92),
    (27.724, 0, -254.17),
    (-26.776, 8.65, -230.92),
    (-26.776, 16.15, -277.42),
    (52.335, 22.334, -277.42),
    (7.806, 37.048, -277.42),
    (-16.716, 39.3, -277.42),
    (-23.847, 36.371, -277.42),
    (-25.897, 0.879, -230.92),
    (1.974, 0, -277.42),
    (-25.897, 0.879, -277.42),
]))
fillet10.Radius = 1
doc.recompute()

fillet11 = doc.addObject("PartDesign::Fillet", "Fillet010")
body2.addObject(fillet11)
fillet11.Base = (fillet10, edges_at(fillet10, [
    (0.974, 14.3, -230.92),
    (0.974, 14.3, -43.92),
    (-26.483, 14.3, -44.213),
    (-26.776, 14.3, -137.42),
    (-26.483, 14.3, -230.627),
]))
fillet11.Radius = 1

sketch8 = doc.addObject("Sketcher::SketchObject", "Sketch007")
body2.addObject(sketch8)
sketch8.AttachmentSupport = (doc.getObject("XZ_Plane001"), [""])
sketch8.MapMode = "FlatFace"
sketch8.AttachmentOffset = App.Placement(Vector(0, 0, -14.3), App.Rotation())
add_polygon(sketch8, [(209.1, -14.9), (209.1, -11.4), (222.1, -11.4), (222.1, -14.9)])
add_polygon(sketch8, [(209.1, -28.4), (209.1, -24.9), (222.1, -24.9), (222.1, -28.4)])
sketch8.addConstraint(Sketcher.Constraint("Vertical", 0))
sketch8.addConstraint(Sketcher.Constraint("Horizontal", 1))
sketch8.addConstraint(Sketcher.Constraint("Vertical", 2))
sketch8.addConstraint(Sketcher.Constraint("Horizontal", 3))
sketch8.addConstraint(Sketcher.Constraint("Vertical", 4))
sketch8.addConstraint(Sketcher.Constraint("Horizontal", 5))
sketch8.addConstraint(Sketcher.Constraint("Vertical", 6))
sketch8.addConstraint(Sketcher.Constraint("Horizontal", 7))
sketch8.addConstraint(Sketcher.Constraint("Vertical", 3, 2, 4, 2))
sketch8.addConstraint(Sketcher.Constraint("Vertical", 2, 2, 5, 2))
sketch8.addConstraint(Sketcher.Constraint("Equal", 2, 4))
sketch8.addConstraint(Sketcher.Constraint("DistanceX", 1, 1, 1, 2, 13.0))
sketch8.addConstraint(Sketcher.Constraint("DistanceY", 0, 1, 0, 2, 3.5))
sketch8.addConstraint(Sketcher.Constraint("DistanceY", 4, 2, 3, 2, 10.0))
sketch8.addConstraint(Sketcher.Constraint("DistanceX", -1, 1, 0, 2, 209.099299))
sketch8.addConstraint(Sketcher.Constraint("DistanceY", 0, 2, -1, 1, 11.420338))
pad4 = doc.addObject("PartDesign::Pad", "Pad003")
body2.addObject(pad4)
pad4.Profile = sketch8
pad4.Length = 33
pad4.Reversed = True

sketch9 = doc.addObject("Sketcher::SketchObject", "Sketch008")
body2.addObject(sketch9)
sketch9.AttachmentSupport = (doc.getObject("XY_Plane001"), [""])
sketch9.MapMode = "FlatFace"
sketch9.AttachmentOffset = App.Placement(Vector(0, 0, -11.420338), App.Rotation())
sketch9.addGeometry(Part.LineSegment(Vector(209, 47, 0), Vector(209, 41, 0)), False)
sketch9.addGeometry(Part.ArcOfCircle(Part.Circle(Vector(216, 41, 0), Vector(0, 0, 1), 7), math.radians(5), math.radians(175)), False)
sketch9.addGeometry(Part.LineSegment(Vector(222, 41, 0), Vector(222, 47, 0)), False)
sketch9.addGeometry(Part.LineSegment(Vector(222, 47, 0), Vector(216, 49, 0)), False)
sketch9.addGeometry(Part.LineSegment(Vector(216, 49, 0), Vector(209, 47, 0)), False)
sketch9.addConstraint(Sketcher.Constraint("Coincident", 0, 2, 1, 2))
sketch9.addConstraint(Sketcher.Constraint("Coincident", 1, 1, 2, 1))
sketch9.addConstraint(Sketcher.Constraint("Coincident", 2, 2, 3, 1))
sketch9.addConstraint(Sketcher.Constraint("Coincident", 3, 2, 4, 1))
sketch9.addConstraint(Sketcher.Constraint("Coincident", 4, 2, 0, 1))
sketch9.addConstraint(Sketcher.Constraint("Vertical", 0))
sketch9.addConstraint(Sketcher.Constraint("Vertical", 2))
sketch9.addConstraint(Sketcher.Constraint("Horizontal", 0, 2, 1, 1))
sketch9.addConstraint(Sketcher.Constraint("Horizontal", 2, 2, 4, 2))
sketch9.addConstraint(Sketcher.Constraint("Vertical", 1, 3, 3, 2))
sketch9.addConstraint(Sketcher.Constraint("DistanceY", 0, 2, 0, 1, 6.0))
sketch9.addConstraint(Sketcher.Constraint("DistanceX", 0, 2, 1, 1, 13.0))
sketch9.addConstraint(Sketcher.Constraint("DistanceY", -1, 1, 0, 2, 41.3))
sketch9.addConstraint(Sketcher.Constraint("Radius", 1, 6.520833))
sketch9.addConstraint(Sketcher.Constraint("DistanceX", -1, 1, 1, 3, 215.599299))
sketch9.addConstraint(Sketcher.Constraint("Distance", 3, 6.739681))
pocket3 = doc.addObject("PartDesign::Pocket", "Pocket002")
body2.addObject(pocket3)
pocket3.Profile = sketch9
pocket3.Length = 17

sketch10 = doc.addObject("Sketcher::SketchObject", "Sketch009")
body2.addObject(sketch10)
sketch10.AttachmentSupport = (doc.getObject("XY_Plane001"), [""])
sketch10.MapMode = "FlatFace"
sketch10.AttachmentOffset = App.Placement(Vector(0, 0, -11.420338), App.Rotation())
sketch10.addGeometry(Part.Circle(Vector(215.6, 41.3, 0), Vector(0, 0, 1), 1.7), False)
sketch10.addGeometry(Part.Circle(Vector(185.1, 50.5, 0), Vector(0, 0, 1), 1.7), False)
sketch10.addGeometry(Part.Circle(Vector(10.6, 122.6, 0), Vector(0, 0, 1), 1.7), False)
sketch10.addConstraint(Sketcher.Constraint("Equal", 0, 1))
sketch10.addConstraint(Sketcher.Constraint("Equal", 1, 2))
sketch10.addConstraint(Sketcher.Constraint("Diameter", 0, 3.4))
sketch10.addConstraint(Sketcher.Constraint("DistanceX", -1, 1, 1, 3, 185.09008))
sketch10.addConstraint(Sketcher.Constraint("DistanceY", -1, 1, 1, 3, 50.47165))
sketch10.addConstraint(Sketcher.Constraint("DistanceX", -1, 1, 2, 3, 10.649939))
sketch10.addConstraint(Sketcher.Constraint("DistanceY", -1, 1, 2, 3, 122.619059))
sketch10.addConstraint(Sketcher.Constraint("DistanceX", -1, 1, 0, 3, 215.594857))
sketch10.addConstraint(Sketcher.Constraint("DistanceY", -1, 1, 0, 3, 41.293397))
doc.recompute()
hole3 = doc.addObject("PartDesign::Hole", "Hole002")
body2.addObject(hole3)
hole3.Profile = sketch10
hole3.ThreadType = "None"
hole3.Diameter = 3.4
hole3.DepthType = "ThroughAll"
hole3.HoleCutType = "Countersink"
hole3.HoleCutDiameter = 6.3
hole3.HoleCutCountersinkAngle = 90
doc.recompute()

datumplane2 = doc.addObject("PartDesign::Plane", "DatumPlane001")
body2.addObject(datumplane2)
datumplane2.AttachmentSupport = (doc.getObject("XY_Plane001"), [""])
datumplane2.MapMode = "FlatFace"
datumplane2.AttachmentOffset = App.Placement(Vector(0, 0, -137.420338), App.Rotation())
mirrored2 = doc.addObject("PartDesign::Mirrored", "Mirrored001")
body2.addObject(mirrored2)
mirrored2.Originals = [pad4, pocket3, hole3]
mirrored2.MirrorPlane = (datumplane2, [""])
body2.Tip = mirrored2

sketch11 = doc.addObject("Sketcher::SketchObject", "Sketch010")
body2.addObject(sketch11)
sketch11.AttachmentSupport = (doc.getObject("XZ_Plane001"), [""])
sketch11.MapMode = "FlatFace"
add_polygon(sketch11, [(-27, -290), (318, -290), (318, 15), (63, 15), (63, -133), (-27, -133)])
sketch11.addConstraint(Sketcher.Constraint("Horizontal", 0))
sketch11.addConstraint(Sketcher.Constraint("Vertical", 1))
sketch11.addConstraint(Sketcher.Constraint("Horizontal", 2))
sketch11.addConstraint(Sketcher.Constraint("Vertical", 3))
sketch11.addConstraint(Sketcher.Constraint("Horizontal", 4))
sketch11.addConstraint(Sketcher.Constraint("Vertical", 5))
sketch11.addConstraint(Sketcher.Constraint("DistanceX", 0, 1, 0, 2, 345.0))
sketch11.addConstraint(Sketcher.Constraint("DistanceY", 1, 1, 1, 2, 305.0))
sketch11.addConstraint(Sketcher.Constraint("DistanceX", 2, 2, 2, 1, 255.13))
sketch11.addConstraint(Sketcher.Constraint("DistanceY", 3, 2, 3, 1, 147.69))
sketch11.addConstraint(Sketcher.Constraint("DistanceX", -1, 1, 0, 2, 318.224299))
sketch11.addConstraint(Sketcher.Constraint("DistanceY", 0, 2, -1, 1, 289.920338))
pocket4 = doc.addObject("PartDesign::Pocket", "Pocket003")
body2.addObject(pocket4)
pocket4.Profile = sketch11
pocket4.Type = "ThroughAll"
mirroring.Visibility = False

doc.recompute()
